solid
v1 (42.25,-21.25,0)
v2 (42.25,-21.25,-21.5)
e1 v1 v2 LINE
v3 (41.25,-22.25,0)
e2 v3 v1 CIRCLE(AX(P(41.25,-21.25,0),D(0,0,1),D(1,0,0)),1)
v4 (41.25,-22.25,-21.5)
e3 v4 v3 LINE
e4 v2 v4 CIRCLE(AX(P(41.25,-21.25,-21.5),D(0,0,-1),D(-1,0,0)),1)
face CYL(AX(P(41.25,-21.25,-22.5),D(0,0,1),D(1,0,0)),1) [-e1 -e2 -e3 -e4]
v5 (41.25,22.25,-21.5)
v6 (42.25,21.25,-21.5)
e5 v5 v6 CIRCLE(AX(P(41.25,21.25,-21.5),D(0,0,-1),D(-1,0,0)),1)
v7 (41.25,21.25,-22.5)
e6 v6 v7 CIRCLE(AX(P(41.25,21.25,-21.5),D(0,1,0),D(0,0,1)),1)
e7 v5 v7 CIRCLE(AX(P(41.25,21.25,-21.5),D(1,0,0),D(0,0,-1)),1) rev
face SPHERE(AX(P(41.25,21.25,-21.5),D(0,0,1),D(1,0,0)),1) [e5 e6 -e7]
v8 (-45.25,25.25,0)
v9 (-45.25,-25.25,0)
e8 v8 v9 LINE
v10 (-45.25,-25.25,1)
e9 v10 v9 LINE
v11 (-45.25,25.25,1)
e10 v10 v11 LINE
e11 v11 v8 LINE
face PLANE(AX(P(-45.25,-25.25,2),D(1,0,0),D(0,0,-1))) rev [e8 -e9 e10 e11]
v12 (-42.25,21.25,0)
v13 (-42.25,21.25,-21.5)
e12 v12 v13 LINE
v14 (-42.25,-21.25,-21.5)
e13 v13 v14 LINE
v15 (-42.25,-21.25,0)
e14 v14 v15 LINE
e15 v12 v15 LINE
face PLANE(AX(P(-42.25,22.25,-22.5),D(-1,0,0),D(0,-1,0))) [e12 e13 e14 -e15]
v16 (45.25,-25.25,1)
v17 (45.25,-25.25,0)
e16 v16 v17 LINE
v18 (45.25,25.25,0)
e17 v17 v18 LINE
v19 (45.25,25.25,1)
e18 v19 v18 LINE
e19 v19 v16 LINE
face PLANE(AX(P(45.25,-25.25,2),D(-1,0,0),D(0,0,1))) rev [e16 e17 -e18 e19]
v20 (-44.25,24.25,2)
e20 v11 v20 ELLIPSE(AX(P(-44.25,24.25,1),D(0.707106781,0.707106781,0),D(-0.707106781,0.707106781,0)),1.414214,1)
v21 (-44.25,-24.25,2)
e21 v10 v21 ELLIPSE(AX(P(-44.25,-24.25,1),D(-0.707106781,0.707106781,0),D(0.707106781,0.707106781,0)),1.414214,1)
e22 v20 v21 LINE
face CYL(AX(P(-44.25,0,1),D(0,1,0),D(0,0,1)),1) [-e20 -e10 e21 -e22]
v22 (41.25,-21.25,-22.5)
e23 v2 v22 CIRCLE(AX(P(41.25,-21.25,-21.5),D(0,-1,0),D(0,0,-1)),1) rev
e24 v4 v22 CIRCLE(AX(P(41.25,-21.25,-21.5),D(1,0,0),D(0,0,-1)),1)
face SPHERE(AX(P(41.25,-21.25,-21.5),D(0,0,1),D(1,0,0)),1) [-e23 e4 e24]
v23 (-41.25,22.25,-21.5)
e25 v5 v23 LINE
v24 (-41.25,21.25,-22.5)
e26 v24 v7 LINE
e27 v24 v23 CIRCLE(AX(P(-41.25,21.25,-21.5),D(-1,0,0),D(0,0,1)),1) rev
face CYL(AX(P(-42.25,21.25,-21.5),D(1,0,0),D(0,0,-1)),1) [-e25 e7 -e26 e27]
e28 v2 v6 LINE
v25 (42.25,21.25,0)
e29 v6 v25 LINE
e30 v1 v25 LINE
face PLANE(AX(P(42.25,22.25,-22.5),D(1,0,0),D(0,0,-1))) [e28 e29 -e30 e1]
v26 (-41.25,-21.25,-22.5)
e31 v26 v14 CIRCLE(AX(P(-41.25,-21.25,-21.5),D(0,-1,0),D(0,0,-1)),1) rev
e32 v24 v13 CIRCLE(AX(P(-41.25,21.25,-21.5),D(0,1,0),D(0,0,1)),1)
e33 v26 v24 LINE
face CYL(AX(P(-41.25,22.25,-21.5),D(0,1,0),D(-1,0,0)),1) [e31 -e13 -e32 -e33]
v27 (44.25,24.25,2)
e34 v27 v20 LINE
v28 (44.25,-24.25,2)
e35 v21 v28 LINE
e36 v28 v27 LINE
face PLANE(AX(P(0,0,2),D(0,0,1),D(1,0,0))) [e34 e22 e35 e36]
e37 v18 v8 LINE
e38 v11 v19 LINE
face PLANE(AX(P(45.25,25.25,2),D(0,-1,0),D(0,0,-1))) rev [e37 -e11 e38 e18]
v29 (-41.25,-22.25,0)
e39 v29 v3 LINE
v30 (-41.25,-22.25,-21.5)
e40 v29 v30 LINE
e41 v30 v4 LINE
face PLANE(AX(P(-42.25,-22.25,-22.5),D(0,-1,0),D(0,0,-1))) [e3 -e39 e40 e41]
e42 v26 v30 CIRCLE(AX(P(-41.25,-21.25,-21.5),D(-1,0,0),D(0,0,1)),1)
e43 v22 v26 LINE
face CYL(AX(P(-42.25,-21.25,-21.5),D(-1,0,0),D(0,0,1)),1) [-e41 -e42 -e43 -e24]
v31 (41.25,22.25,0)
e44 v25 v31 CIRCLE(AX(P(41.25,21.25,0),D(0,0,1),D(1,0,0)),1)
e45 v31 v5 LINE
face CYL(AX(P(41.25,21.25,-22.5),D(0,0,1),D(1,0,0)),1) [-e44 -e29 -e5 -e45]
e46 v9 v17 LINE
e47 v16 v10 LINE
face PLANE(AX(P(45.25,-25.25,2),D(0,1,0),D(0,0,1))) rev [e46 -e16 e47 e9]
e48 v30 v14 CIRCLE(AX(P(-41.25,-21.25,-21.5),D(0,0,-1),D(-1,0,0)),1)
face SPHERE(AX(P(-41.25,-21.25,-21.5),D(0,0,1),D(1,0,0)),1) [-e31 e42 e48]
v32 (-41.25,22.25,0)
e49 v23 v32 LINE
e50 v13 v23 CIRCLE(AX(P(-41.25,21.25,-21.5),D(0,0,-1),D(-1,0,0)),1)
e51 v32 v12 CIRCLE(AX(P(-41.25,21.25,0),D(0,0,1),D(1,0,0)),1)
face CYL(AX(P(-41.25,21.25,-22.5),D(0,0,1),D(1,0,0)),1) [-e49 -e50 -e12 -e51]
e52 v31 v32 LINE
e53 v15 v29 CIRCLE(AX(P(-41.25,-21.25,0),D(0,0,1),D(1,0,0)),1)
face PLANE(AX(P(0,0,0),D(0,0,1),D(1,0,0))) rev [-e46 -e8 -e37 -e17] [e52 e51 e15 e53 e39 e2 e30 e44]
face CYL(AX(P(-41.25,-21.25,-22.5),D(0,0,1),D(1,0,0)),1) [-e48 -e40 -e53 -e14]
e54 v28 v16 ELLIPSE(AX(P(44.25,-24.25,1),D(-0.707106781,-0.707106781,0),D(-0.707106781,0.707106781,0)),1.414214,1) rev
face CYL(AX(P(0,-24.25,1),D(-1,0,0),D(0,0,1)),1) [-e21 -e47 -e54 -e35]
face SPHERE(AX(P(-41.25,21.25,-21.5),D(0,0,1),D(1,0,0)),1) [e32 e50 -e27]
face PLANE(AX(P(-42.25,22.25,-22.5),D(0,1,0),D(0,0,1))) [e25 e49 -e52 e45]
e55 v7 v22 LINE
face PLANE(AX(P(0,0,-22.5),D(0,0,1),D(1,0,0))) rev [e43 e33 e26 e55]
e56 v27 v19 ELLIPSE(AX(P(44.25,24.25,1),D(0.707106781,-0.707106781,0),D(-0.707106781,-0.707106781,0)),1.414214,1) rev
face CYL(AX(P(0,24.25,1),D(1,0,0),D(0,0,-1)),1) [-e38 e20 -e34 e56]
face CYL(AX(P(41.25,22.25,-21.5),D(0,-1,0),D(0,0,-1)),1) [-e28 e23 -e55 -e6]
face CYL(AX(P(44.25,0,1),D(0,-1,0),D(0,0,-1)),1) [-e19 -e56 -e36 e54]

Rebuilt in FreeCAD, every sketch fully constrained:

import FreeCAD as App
import Part
import Sketcher
Q = App.Units.Quantity


def edges_at(feature, points):
    """Names of the edges that pass closest to the given points."""
    edges = feature.Shape.Edges
    near = lambda p: min(range(len(edges)), key=lambda i: edges[i].distToShape(Part.Vertex(*p))[0])
    return sorted({f"Edge{near(p) + 1}" for p in points})

doc = App.newDocument("Part")
body = doc.addObject("PartDesign::Body", "Body")

# Sketch on XY plane
sketch1 = body.newObject("Sketcher::SketchObject", "Sketch")
sketch1.AttachmentSupport = (doc.getObject("XY_Plane"), [""])
sketch1.MapMode = "FlatFace"
sketch1.addGeometry(Part.LineSegment(App.Vector(-42, 22, 0), App.Vector(-42, -22, 0)), False)
sketch1.addGeometry(Part.LineSegment(App.Vector(-42, -22, 0), App.Vector(42, -22, 0)), False)
sketch1.addGeometry(Part.LineSegment(App.Vector(42, -22, 0), App.Vector(42, 22, 0)), False)
sketch1.addGeometry(Part.LineSegment(App.Vector(42, 22, 0), App.Vector(-42, 22, 0)), False)
sketch1.addConstraint(Sketcher.Constraint("Coincident", 0, 2, 1, 1))
sketch1.addConstraint(Sketcher.Constraint("Coincident", 1, 2, 2, 1))
sketch1.addConstraint(Sketcher.Constraint("Coincident", 2, 2, 3, 1))
sketch1.addConstraint(Sketcher.Constraint("Coincident", 3, 2, 0, 1))
sketch1.addConstraint(Sketcher.Constraint("Vertical", 0))
sketch1.addConstraint(Sketcher.Constraint("Horizontal", 1))
sketch1.addConstraint(Sketcher.Constraint("Vertical", 2))
sketch1.addConstraint(Sketcher.Constraint("Horizontal", 3))
sketch1.addConstraint(Sketcher.Constraint("Symmetric", 0, 2, 2, 2, -1, 1))
sketch1.addConstraint(Sketcher.Constraint("DistanceX", 1, 1, 1, 2, Q("84.5 mm")))
sketch1.addConstraint(Sketcher.Constraint("DistanceY", 0, 2, 0, 1, Q("44.5 mm")))
pad1 = body.newObject("PartDesign::Pad", "Pad")
pad1.Profile = sketch1
pad1.Length = 22.5
pad1.Reversed = True

# Sketch on XY plane
sketch2 = body.newObject("Sketcher::SketchObject", "Sketch001")
sketch2.AttachmentSupport = (doc.getObject("XY_Plane"), [""])
sketch2.MapMode = "FlatFace"
sketch2.addGeometry(Part.LineSegment(App.Vector(-45, 25, 0), App.Vector(-45, -25, 0)), False)
sketch2.addGeometry(Part.LineSegment(App.Vector(-45, -25, 0), App.Vector(45, -25, 0)), False)
sketch2.addGeometry(Part.LineSegment(App.Vector(45, -25, 0), App.Vector(45, 25, 0)), False)
sketch2.addGeometry(Part.LineSegment(App.Vector(45, 25, 0), App.Vector(-45, 25, 0)), False)
sketch2.addConstraint(Sketcher.Constraint("Coincident", 0, 2, 1, 1))
sketch2.addConstraint(Sketcher.Constraint("Coincident", 1, 2, 2, 1))
sketch2.addConstraint(Sketcher.Constraint("Coincident", 2, 2, 3, 1))
sketch2.addConstraint(Sketcher.Constraint("Coincident", 3, 2, 0, 1))
sketch2.addConstraint(Sketcher.Constraint("Vertical", 0))
sketch2.addConstraint(Sketcher.Constraint("Horizontal", 1))
sketch2.addConstraint(Sketcher.Constraint("Vertical", 2))
sketch2.addConstraint(Sketcher.Constraint("Horizontal", 3))
sketch2.addConstraint(Sketcher.Constraint("Symmetric", 0, 2, 2, 2, -1, 1))
sketch2.addConstraint(Sketcher.Constraint("DistanceX", 1, 1, 1, 2, Q("90.5 mm")))
sketch2.addConstraint(Sketcher.Constraint("DistanceY", 0, 2, 0, 1, Q("50.5 mm")))
pad2 = body.newObject("PartDesign::Pad", "Pad001")
pad2.Profile = sketch2
pad2.Length = 2
doc.recompute()

fillet = body.newObject("PartDesign::Fillet", "Fillet")
fillet.Base = (pad2, edges_at(pad2, [
    (-42.25, 0, -22.5),
    (-45.25, 0, 2),
    (0, -25.25, 2),
    (45.25, 0, 2),
    (0, 25.25, 2),
    (0, -22.25, -22.5),
    (42.25, 0, -22.5),
    (42.25, -22.25, -11.25),
    (-42.25, -22.25, -11.25),
    (-42.25, 22.25, -11.25),
    (42.25, 22.25, -11.25),
    (0, 22.25, -22.5),
]))
fillet.Radius = 1

doc.recompute()
